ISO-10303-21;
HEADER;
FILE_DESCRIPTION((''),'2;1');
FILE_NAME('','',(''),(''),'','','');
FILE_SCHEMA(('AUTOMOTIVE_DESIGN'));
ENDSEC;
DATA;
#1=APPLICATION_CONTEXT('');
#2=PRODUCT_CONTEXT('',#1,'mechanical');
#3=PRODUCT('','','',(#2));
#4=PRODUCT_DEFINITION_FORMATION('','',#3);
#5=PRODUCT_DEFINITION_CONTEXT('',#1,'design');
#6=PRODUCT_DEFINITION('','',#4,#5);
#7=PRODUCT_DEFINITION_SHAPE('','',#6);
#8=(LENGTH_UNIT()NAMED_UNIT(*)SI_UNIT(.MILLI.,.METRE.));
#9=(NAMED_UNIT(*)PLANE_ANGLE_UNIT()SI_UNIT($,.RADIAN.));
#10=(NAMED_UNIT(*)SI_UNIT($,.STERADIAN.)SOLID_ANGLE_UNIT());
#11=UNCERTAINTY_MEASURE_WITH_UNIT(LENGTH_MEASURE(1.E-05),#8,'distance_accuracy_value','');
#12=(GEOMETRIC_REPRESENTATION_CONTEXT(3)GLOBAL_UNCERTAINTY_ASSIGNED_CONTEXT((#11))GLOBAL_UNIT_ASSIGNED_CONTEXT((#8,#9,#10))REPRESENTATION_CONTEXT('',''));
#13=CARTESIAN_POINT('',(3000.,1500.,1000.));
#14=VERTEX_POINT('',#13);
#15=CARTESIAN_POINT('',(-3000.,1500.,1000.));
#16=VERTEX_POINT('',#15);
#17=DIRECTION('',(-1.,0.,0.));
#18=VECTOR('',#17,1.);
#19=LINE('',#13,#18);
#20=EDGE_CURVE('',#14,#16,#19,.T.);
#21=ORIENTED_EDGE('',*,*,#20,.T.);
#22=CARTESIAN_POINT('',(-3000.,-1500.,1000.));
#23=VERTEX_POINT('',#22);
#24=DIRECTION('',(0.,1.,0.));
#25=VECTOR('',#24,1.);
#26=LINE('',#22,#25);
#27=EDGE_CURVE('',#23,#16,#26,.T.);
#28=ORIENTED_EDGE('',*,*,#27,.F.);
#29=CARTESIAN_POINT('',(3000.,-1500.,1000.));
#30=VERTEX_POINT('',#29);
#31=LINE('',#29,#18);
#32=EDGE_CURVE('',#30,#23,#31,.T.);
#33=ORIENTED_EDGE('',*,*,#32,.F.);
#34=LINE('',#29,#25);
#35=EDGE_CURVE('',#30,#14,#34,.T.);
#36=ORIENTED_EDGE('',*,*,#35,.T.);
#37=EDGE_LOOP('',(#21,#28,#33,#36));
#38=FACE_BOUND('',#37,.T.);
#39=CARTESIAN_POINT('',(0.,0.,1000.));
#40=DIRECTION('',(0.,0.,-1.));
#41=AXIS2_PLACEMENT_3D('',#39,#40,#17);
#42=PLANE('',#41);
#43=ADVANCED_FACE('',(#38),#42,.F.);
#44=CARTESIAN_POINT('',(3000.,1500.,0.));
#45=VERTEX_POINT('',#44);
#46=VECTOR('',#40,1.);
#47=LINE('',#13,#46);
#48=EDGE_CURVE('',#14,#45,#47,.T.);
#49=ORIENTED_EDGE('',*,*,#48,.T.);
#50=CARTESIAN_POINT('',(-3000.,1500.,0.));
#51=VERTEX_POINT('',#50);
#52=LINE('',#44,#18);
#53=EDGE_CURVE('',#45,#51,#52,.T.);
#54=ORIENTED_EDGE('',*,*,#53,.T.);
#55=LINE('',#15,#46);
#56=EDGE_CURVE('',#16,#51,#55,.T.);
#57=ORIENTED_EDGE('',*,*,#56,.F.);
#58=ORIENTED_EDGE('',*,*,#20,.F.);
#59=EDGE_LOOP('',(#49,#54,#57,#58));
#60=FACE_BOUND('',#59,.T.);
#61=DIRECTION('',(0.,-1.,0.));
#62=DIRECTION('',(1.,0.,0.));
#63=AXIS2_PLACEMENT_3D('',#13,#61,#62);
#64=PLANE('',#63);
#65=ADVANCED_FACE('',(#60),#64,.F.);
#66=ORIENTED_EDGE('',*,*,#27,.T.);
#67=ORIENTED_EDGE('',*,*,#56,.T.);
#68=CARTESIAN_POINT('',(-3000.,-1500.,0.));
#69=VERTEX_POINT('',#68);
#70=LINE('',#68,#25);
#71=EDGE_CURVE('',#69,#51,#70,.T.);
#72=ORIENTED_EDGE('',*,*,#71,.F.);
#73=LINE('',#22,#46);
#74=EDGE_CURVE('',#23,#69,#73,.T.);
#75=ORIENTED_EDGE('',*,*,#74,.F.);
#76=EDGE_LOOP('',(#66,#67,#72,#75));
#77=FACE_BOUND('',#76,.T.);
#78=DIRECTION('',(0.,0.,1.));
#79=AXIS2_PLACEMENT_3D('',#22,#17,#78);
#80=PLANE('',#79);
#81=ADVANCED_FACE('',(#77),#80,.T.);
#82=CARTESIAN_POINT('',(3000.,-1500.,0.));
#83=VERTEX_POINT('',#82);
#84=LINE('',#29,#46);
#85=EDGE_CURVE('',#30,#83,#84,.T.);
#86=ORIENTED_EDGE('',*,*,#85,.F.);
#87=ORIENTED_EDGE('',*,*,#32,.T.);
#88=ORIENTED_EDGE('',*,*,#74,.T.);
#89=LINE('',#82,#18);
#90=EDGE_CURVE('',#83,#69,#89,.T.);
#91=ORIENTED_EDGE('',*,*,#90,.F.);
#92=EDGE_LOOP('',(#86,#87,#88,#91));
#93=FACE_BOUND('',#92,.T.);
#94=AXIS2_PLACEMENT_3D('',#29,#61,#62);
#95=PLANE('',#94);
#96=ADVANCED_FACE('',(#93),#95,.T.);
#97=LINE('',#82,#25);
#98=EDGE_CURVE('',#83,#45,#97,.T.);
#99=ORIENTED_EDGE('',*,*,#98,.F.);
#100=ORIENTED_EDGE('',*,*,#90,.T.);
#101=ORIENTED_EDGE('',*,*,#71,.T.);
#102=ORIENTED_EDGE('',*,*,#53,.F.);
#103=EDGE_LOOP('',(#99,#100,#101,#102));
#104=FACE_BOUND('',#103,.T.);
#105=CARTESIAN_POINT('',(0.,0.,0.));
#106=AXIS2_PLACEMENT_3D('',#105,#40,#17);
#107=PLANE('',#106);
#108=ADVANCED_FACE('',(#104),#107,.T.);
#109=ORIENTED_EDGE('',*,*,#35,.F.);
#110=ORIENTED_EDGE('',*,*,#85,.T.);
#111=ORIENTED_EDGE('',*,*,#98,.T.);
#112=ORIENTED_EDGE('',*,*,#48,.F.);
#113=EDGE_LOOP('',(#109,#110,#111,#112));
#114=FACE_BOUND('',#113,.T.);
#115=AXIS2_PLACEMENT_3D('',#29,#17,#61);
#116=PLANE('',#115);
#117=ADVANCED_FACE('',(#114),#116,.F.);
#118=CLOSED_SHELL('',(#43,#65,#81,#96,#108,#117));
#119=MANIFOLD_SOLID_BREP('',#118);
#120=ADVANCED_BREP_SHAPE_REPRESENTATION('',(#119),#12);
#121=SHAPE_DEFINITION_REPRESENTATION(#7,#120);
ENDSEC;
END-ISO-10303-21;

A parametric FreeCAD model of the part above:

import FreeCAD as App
import Part
import Sketcher


def add_polygon(sketch, points):
    """Adds a closed chain of lines whose ends are joined by coincident constraints."""
    first, n = sketch.GeometryCount, len(points)
    for a, b in zip(points, points[1:] + points[:1]):
        sketch.addGeometry(Part.LineSegment(App.Vector(*a, 0), App.Vector(*b, 0)), False)
    for i in range(n):
        sketch.addConstraint(Sketcher.Constraint("Coincident", first + i, 2, first + (i + 1) % n, 1))

doc = App.newDocument("Part")
body = doc.addObject("PartDesign::Body", "Body")

# Sketch on XY plane
sketch1 = body.newObject("Sketcher::SketchObject", "Sketch")
sketch1.AttachmentSupport = (doc.getObject("XY_Plane"), [""])
sketch1.MapMode = "FlatFace"
add_polygon(sketch1, [(-3000, 1500), (-3000, -1500), (3000, -1500), (3000, 1500)])  # lines 0-3
sketch1.addConstraint(Sketcher.Constraint("Vertical", 0))
sketch1.addConstraint(Sketcher.Constraint("Horizontal", 1))
sketch1.addConstraint(Sketcher.Constraint("Vertical", 2))
sketch1.addConstraint(Sketcher.Constraint("Horizontal", 3))
sketch1.addConstraint(Sketcher.Constraint("Symmetric", 0, 2, 2, 2, -1, 1))
sketch1.addConstraint(Sketcher.Constraint("DistanceX", 1, 1, 1, 2, 6000.0))
sketch1.addConstraint(Sketcher.Constraint("DistanceY", 0, 2, 0, 1, 3000.0))
pad1 = body.newObject("PartDesign::Pad", "Pad")
pad1.Profile = sketch1
pad1.Length = 1000

doc.recompute()
